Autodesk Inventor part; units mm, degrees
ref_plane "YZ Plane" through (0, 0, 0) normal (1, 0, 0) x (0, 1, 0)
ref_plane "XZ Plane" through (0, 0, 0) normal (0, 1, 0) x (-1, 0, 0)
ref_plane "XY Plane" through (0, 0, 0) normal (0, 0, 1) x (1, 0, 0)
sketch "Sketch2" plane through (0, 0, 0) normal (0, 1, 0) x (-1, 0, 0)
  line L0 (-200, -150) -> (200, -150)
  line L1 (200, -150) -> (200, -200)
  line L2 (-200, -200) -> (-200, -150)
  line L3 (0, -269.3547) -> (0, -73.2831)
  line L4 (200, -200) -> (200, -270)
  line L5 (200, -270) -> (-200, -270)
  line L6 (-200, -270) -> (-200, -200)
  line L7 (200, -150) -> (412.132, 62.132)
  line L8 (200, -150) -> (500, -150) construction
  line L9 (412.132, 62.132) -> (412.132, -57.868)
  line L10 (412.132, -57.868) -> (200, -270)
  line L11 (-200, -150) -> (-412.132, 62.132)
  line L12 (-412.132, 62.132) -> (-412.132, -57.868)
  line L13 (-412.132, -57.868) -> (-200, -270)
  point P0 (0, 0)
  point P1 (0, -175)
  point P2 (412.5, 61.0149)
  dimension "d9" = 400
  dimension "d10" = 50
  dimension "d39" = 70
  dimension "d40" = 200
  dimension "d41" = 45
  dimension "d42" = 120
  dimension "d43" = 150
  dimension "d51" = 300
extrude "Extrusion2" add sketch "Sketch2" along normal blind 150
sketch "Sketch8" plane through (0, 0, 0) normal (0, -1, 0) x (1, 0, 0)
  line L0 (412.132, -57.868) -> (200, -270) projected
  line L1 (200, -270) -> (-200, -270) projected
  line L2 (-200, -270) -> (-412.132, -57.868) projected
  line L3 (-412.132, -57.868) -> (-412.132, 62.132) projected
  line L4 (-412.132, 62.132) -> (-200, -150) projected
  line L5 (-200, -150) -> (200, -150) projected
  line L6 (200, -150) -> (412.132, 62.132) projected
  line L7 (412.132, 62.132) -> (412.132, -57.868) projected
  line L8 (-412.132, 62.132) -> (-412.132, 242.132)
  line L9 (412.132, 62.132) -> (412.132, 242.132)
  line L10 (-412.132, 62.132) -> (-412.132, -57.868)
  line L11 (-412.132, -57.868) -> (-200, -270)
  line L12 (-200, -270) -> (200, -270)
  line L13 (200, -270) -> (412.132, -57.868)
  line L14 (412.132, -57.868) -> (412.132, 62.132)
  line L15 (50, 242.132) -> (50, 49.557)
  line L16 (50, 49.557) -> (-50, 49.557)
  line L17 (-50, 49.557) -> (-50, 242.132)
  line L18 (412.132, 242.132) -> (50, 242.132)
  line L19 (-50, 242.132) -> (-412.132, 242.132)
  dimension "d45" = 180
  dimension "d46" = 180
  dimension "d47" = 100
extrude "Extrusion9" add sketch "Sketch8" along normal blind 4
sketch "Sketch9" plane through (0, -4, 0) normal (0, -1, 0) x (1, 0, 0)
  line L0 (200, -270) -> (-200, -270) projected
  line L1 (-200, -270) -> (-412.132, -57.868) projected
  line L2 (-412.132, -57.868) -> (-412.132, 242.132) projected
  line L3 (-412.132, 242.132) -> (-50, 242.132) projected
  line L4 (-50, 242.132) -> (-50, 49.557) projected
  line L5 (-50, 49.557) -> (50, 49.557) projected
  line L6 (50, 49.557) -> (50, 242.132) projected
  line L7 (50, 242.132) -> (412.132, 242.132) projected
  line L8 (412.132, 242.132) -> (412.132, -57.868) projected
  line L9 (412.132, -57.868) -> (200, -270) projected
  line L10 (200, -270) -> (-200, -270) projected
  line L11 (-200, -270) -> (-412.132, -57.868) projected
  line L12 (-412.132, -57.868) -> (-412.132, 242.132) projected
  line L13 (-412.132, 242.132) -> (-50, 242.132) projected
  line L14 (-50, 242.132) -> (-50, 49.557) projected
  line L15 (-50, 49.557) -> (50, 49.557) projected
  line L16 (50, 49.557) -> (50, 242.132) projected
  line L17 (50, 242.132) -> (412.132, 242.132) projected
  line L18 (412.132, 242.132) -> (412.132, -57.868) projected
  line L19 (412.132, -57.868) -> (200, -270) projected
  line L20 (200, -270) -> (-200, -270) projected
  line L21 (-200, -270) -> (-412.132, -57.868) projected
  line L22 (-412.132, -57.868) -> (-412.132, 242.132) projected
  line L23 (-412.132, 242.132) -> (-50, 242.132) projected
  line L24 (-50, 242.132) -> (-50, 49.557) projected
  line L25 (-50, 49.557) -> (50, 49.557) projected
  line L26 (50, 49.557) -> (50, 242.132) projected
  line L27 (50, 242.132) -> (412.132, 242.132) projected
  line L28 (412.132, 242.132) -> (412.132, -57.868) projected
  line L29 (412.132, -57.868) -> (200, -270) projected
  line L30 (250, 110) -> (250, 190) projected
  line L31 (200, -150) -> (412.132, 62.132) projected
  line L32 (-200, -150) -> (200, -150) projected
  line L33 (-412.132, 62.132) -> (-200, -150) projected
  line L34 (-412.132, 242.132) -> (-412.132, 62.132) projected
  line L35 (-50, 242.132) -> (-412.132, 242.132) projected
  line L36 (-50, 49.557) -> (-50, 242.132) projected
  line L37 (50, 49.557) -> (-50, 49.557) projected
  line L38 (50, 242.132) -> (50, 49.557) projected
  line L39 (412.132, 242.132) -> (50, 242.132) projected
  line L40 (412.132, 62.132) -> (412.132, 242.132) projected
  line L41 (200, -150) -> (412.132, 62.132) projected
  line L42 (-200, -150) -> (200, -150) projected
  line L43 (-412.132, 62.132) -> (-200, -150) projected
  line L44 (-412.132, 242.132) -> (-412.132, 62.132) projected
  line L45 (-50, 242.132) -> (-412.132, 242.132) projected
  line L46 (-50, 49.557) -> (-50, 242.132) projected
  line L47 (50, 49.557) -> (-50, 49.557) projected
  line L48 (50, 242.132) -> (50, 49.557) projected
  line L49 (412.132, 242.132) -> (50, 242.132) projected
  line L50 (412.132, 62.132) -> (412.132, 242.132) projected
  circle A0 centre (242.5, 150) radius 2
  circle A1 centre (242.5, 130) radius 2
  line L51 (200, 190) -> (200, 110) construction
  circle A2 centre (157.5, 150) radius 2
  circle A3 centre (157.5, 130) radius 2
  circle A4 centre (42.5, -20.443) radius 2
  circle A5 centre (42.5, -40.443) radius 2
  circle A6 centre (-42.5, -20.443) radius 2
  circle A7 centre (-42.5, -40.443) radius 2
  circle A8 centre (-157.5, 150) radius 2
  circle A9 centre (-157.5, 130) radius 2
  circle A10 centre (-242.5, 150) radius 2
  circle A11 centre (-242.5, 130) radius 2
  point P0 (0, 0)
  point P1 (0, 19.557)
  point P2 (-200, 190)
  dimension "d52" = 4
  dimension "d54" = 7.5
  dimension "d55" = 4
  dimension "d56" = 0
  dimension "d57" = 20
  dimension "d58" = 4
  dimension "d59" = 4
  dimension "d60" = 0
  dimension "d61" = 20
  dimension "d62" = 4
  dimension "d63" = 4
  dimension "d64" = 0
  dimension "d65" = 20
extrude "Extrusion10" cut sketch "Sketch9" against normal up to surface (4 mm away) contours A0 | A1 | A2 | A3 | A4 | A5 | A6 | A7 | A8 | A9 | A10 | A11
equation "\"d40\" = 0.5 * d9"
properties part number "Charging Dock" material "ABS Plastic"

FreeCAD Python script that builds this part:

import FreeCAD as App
import Part
import Sketcher
from FreeCAD import Vector


def add_polygon(sketch, points):
    """Adds a closed chain of lines whose ends are joined by coincident constraints."""
    first, n = sketch.GeometryCount, len(points)
    for a, b in zip(points, points[1:] + points[:1]):
        sketch.addGeometry(Part.LineSegment(App.Vector(*a, 0), App.Vector(*b, 0)), False)
    for i in range(n):
        sketch.addConstraint(Sketcher.Constraint("Coincident", first + i, 2, first + (i + 1) % n, 1))

doc = App.newDocument("Part")
body = doc.addObject("PartDesign::Body", "Body")

sketch1 = body.newObject("Sketcher::SketchObject", "Sketch")
sketch1.AttachmentSupport = (doc.getObject("XZ_Plane"), [""])
sketch1.MapMode = "FlatFace"
add_polygon(sketch1, [(200, -150), (412.132, 62.132), (412.132, -57.868), (200, -270), (-200, -270), (-412.132, -57.868), (-412.132, 62.132), (-200, -150)])
sketch1.addConstraint([
    Sketcher.Constraint("Vertical", 1),
    Sketcher.Constraint("Horizontal", 3),
    Sketcher.Constraint("Vertical", 5),
    Sketcher.Constraint("Horizontal", 7),
    Sketcher.Constraint("Symmetric", 1, 2, 4, 2, -2),
    Sketcher.Constraint("Parallel", 0, 2),
    Sketcher.Constraint("Perpendicular", 2, 4),
    Sketcher.Constraint("Parallel", 4, 6),
    Sketcher.Constraint("Horizontal", 0, 2, 5, 2),
    Sketcher.Constraint("Vertical", 3, 2, 6, 2),
    Sketcher.Constraint("Equal", 2, 4),
    Sketcher.Constraint("DistanceX", 3, 2, 3, 1, 400.0),
    Sketcher.Constraint("DistanceY", 1, 2, 1, 1, 120.0),
    Sketcher.Constraint("Distance", 0, 300.0),
    Sketcher.Constraint("DistanceY", 6, 2, -1, 1, 150.0),
])
pad1 = body.newObject("PartDesign::Pad", "Pad")
pad1.Profile = sketch1
pad1.Length = 150
pad1.Reversed = True

sketch2 = body.newObject("Sketcher::SketchObject", "Sketch001")
sketch2.AttachmentSupport = (doc.getObject("XZ_Plane"), [""])
sketch2.MapMode = "FlatFace"
add_polygon(sketch2, [(200, -270), (412.132, -57.868), (412.132, 242.132), (50, 242.132), (50, 49.557), (-50, 49.557), (-50, 242.132), (-412.132, 242.132), (-412.132, -57.868), (-200, -270)])
sketch2.addConstraint([
    Sketcher.Constraint("Vertical", 1),
    Sketcher.Constraint("Horizontal", 2),
    Sketcher.Constraint("Vertical", 3),
    Sketcher.Constraint("Horizontal", 4),
    Sketcher.Constraint("Vertical", 5),
    Sketcher.Constraint("Horizontal", 6),
    Sketcher.Constraint("Vertical", 7),
    Sketcher.Constraint("Horizontal", 9),
    Sketcher.Constraint("Symmetric", 2, 2, 5, 2, -2),
    Sketcher.Constraint("Symmetric", 0, 2, 7, 2, -2),
    Sketcher.Constraint("Perpendicular", 0, 8),
    Sketcher.Constraint("Equal", 0, 8),
    Sketcher.Constraint("DistanceX", 4, 2, 4, 1, 100.0),
    Sketcher.Constraint("DistanceX", 9, 1, 9, 2, 400.0),
    Sketcher.Constraint("DistanceY", 1, 1, 1, 2, 300.0),
    Sketcher.Constraint("Distance", 0, 300.0),
    Sketcher.Constraint("DistanceY", 8, 2, -1, 1, 270.0),
    Sketcher.Constraint("DistanceY", 3, 2, 3, 1, 192.575),
])
pad2 = body.newObject("PartDesign::Pad", "Pad001")
pad2.Profile = sketch2
pad2.Length = 4

sketch3 = body.newObject("Sketcher::SketchObject", "Sketch002")
sketch3.AttachmentSupport = (doc.getObject("XZ_Plane"), [""])
sketch3.MapMode = "FlatFace"
sketch3.AttachmentOffset = App.Placement(Vector(0, 0, 4), App.Rotation())
sketch3.addGeometry([
    Part.Circle(Vector(242.5, 150, 0), Vector(0, 0, 1), 2),
    Part.Circle(Vector(242.5, 130, 0), Vector(0, 0, 1), 2),
    Part.Circle(Vector(157.5, 150, 0), Vector(0, 0, 1), 2),
    Part.Circle(Vector(157.5, 130, 0), Vector(0, 0, 1), 2),
    Part.Circle(Vector(42.5, -20.443, 0), Vector(0, 0, 1), 2),
    Part.Circle(Vector(42.5, -40.443, 0), Vector(0, 0, 1), 2),
    Part.Circle(Vector(-42.5, -20.443, 0), Vector(0, 0, 1), 2),
    Part.Circle(Vector(-42.5, -40.443, 0), Vector(0, 0, 1), 2),
    Part.Circle(Vector(-157.5, 150, 0), Vector(0, 0, 1), 2),
    Part.Circle(Vector(-157.5, 130, 0), Vector(0, 0, 1), 2),
    Part.Circle(Vector(-242.5, 150, 0), Vector(0, 0, 1), 2),
    Part.Circle(Vector(-242.5, 130, 0), Vector(0, 0, 1), 2),
], False)
sketch3.addConstraint([
    Sketcher.Constraint("Equal", 0, 1),
    Sketcher.Constraint("Equal", 1, 2),
    Sketcher.Constraint("Equal", 2, 3),
    Sketcher.Constraint("Equal", 3, 4),
    Sketcher.Constraint("Equal", 4, 5),
    Sketcher.Constraint("Equal", 5, 6),
    Sketcher.Constraint("Equal", 6, 7),
    Sketcher.Constraint("Equal", 7, 8),
    Sketcher.Constraint("Equal", 8, 9),
    Sketcher.Constraint("Equal", 9, 10),
    Sketcher.Constraint("Equal", 10, 11),
    Sketcher.Constraint("Symmetric", 4, 3, 6, 3, -2),
    Sketcher.Constraint("Symmetric", 5, 3, 7, 3, -2),
    Sketcher.Constraint("Symmetric", 2, 3, 8, 3, -2),
    Sketcher.Constraint("Symmetric", 3, 3, 9, 3, -2),
    Sketcher.Constraint("Symmetric", 0, 3, 10, 3, -2),
    Sketcher.Constraint("Symmetric", 1, 3, 11, 3, -2),
    Sketcher.Constraint("Horizontal", 0, 3, 2, 3),
    Sketcher.Constraint("Horizontal", 1, 3, 3, 3),
    Sketcher.Constraint("Vertical", 0, 3, 1, 3),
    Sketcher.Constraint("Vertical", 2, 3, 3, 3),
    Sketcher.Constraint("Vertical", 4, 3, 5, 3),
    Sketcher.Constraint("Diameter", 0, 4.0),
    Sketcher.Constraint("DistanceY", 1, 3, 0, 3, 20.0),
    Sketcher.Constraint("DistanceY", 5, 3, 4, 3, 20.0),
    Sketcher.Constraint("DistanceY", -1, 1, 0, 3, 150.0),
    Sketcher.Constraint("DistanceX", 2, 3, 0, 3, 85.0),
    Sketcher.Constraint("DistanceX", 4, 3, 3, 3, 115.0),
    Sketcher.Constraint("DistanceX", 6, 3, 4, 3, 85.0),
    Sketcher.Constraint("DistanceY", 4, 3, -1, 1, 20.443),
])
pocket1 = body.newObject("PartDesign::Pocket", "Pocket")
pocket1.Profile = sketch3
pocket1.Length = 4

doc.recompute()
